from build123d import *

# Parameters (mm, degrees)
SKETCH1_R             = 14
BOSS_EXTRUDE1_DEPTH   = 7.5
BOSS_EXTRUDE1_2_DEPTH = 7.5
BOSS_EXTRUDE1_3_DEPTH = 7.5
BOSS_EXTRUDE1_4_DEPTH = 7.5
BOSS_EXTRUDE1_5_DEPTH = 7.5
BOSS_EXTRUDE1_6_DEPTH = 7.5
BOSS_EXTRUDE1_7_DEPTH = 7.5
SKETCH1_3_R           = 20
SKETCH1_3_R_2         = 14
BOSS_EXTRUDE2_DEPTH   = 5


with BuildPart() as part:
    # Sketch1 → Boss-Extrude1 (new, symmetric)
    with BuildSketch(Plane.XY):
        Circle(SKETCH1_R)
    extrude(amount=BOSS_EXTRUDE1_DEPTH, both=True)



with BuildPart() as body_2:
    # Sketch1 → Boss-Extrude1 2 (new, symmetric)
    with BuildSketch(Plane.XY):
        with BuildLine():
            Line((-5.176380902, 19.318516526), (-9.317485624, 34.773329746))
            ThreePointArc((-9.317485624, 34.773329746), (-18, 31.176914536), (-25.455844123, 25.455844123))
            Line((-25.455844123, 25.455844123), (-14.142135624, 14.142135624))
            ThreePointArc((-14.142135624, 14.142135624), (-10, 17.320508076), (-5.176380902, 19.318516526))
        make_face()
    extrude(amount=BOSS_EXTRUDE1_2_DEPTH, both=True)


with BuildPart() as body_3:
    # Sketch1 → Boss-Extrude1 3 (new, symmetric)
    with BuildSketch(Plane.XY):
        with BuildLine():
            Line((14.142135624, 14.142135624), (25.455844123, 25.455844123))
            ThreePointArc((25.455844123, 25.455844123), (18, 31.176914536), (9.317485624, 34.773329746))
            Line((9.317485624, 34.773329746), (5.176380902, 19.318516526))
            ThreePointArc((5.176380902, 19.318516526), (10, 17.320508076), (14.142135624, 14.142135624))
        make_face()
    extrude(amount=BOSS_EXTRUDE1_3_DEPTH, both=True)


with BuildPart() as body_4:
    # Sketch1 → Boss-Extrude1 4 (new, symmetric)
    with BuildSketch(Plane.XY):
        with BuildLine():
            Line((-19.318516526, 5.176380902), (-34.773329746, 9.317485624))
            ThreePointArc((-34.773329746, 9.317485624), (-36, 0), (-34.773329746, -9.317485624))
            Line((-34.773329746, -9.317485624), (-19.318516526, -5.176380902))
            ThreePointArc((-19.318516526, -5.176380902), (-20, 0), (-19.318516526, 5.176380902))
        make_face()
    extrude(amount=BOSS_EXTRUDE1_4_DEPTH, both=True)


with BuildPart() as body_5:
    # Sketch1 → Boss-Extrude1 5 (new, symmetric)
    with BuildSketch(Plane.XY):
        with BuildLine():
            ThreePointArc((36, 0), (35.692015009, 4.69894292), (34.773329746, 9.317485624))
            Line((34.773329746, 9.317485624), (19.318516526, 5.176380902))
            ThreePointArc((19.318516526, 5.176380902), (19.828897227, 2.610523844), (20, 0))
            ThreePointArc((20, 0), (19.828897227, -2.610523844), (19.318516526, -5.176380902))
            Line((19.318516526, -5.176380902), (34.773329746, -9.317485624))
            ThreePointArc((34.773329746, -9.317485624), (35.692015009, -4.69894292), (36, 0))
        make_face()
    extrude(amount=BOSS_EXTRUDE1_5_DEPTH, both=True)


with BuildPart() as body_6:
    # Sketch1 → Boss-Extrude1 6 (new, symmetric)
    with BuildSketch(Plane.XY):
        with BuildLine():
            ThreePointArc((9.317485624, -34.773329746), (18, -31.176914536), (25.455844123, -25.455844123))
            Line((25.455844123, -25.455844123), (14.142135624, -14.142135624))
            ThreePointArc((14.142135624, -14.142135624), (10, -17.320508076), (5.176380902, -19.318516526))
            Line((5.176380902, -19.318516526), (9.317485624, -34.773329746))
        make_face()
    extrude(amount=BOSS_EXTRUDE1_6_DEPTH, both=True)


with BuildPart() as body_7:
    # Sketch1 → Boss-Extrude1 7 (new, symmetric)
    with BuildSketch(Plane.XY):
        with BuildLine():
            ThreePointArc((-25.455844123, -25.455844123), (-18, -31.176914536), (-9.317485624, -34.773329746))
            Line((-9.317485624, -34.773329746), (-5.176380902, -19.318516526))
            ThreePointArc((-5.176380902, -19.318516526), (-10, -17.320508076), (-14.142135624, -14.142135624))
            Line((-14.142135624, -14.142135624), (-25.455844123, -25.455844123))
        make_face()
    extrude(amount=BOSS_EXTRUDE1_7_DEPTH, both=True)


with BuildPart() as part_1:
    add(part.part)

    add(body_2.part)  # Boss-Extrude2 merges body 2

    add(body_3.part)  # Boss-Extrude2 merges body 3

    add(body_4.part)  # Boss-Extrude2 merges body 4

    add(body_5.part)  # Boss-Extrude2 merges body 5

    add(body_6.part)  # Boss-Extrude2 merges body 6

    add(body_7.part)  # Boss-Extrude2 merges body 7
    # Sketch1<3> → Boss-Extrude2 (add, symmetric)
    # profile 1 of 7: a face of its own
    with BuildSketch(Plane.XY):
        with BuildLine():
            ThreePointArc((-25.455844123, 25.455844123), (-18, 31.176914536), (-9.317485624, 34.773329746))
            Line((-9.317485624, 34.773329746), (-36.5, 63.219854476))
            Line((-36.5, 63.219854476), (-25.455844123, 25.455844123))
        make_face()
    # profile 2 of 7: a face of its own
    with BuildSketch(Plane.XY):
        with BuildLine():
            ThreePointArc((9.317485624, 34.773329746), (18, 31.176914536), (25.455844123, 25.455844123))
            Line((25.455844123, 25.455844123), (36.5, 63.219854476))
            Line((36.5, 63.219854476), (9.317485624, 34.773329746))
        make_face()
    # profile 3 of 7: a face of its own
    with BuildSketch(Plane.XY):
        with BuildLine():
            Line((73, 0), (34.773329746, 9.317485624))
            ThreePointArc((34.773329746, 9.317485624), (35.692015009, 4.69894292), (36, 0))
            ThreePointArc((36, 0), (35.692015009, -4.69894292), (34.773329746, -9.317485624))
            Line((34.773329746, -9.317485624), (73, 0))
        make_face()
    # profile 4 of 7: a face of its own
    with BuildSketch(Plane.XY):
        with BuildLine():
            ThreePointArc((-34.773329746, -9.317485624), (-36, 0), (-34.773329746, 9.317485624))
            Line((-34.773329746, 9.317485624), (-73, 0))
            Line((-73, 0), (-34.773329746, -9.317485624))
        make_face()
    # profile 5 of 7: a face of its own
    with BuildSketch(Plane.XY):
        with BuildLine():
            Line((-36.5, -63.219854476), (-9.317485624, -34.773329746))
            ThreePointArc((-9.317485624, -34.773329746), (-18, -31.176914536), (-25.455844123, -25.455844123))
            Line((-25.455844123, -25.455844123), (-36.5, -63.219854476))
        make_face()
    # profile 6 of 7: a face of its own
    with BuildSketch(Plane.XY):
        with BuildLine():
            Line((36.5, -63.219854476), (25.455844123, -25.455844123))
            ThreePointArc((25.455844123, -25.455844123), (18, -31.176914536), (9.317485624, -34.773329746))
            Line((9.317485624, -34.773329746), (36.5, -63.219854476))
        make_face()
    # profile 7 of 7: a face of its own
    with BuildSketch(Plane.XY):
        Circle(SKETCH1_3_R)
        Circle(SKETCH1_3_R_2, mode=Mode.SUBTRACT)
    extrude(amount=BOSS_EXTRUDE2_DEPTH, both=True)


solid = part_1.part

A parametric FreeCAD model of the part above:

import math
import FreeCAD as App
import Part
import Sketcher
from FreeCAD import Vector
Q = App.Units.Quantity

doc = App.newDocument("Part")
body = doc.addObject("PartDesign::Body", "Body")

# Sketch on XY plane
sketch1 = body.newObject("Sketcher::SketchObject", "Sketch")
sketch1.AttachmentSupport = (doc.getObject("XY_Plane"), [""])
sketch1.MapMode = "FlatFace"
sketch1.addGeometry(Part.Circle(Vector(0, 0, 0), Vector(0, 0, 1), 14), False)
sketch1.addConstraint([
    Sketcher.Constraint("Coincident", 0, 3, -1, 1),
    Sketcher.Constraint("Diameter", 0, Q("28 mm")),
])
pad1 = body.newObject("PartDesign::Pad", "Pad")
pad1.Profile = sketch1
pad1.Length = 15
pad1.Midplane = True
body2 = doc.addObject("PartDesign::Body", "Body001")

# Sketch on XY plane
sketch2 = body2.newObject("Sketcher::SketchObject", "Sketch001")
sketch2.AttachmentSupport = (doc.getObject("XY_Plane001"), [""])
sketch2.MapMode = "FlatFace"
sketch2.addGeometry([
    Part.LineSegment(Vector(-5, 19, 0), Vector(-9, 35, 0)),
    Part.ArcOfCircle(Part.Circle(Vector(0, 0, 0), Vector(0, 0, 1), 36), math.radians(105), math.radians(135)),
    Part.LineSegment(Vector(-25, 25, 0), Vector(-14, 14, 0)),
    Part.ArcOfCircle(Part.Circle(Vector(0, 0, 0), Vector(0, 0, 1), 20), math.radians(105), math.radians(135)),
], False)
sketch2.addConstraint([
    Sketcher.Constraint("Coincident", 0, 2, 1, 1),
    Sketcher.Constraint("Coincident", 1, 2, 2, 1),
    Sketcher.Constraint("Coincident", 2, 2, 3, 2),
    Sketcher.Constraint("Coincident", 3, 1, 0, 1),
    Sketcher.Constraint("Coincident", 1, 3, -1, 1),
    Sketcher.Constraint("Coincident", 3, 3, -1, 1),
    Sketcher.Constraint("Radius", 1, Q("36 mm")),
    Sketcher.Constraint("Radius", 3, Q("20 mm")),
    Sketcher.Constraint("Angle", 0, Q("105 deg")),
    Sketcher.Constraint("Angle", 2, Q("-45 deg")),
    Sketcher.Constraint("DistanceY", -1, 1, 0, 2, Q("34.77333 mm")),
    Sketcher.Constraint("DistanceX", 1, 2, 0, 2, Q("16.138358 mm")),
])
pad2 = body2.newObject("PartDesign::Pad", "Pad001")
pad2.Profile = sketch2
pad2.Length = 15
pad2.Midplane = True
body3 = doc.addObject("PartDesign::Body", "Body002")

# Sketch on XY plane
sketch3 = body3.newObject("Sketcher::SketchObject", "Sketch002")
sketch3.AttachmentSupport = (doc.getObject("XY_Plane002"), [""])
sketch3.MapMode = "FlatFace"
sketch3.addGeometry([
    Part.LineSegment(Vector(14, 14, 0), Vector(25, 25, 0)),
    Part.ArcOfCircle(Part.Circle(Vector(0, 0, 0), Vector(0, 0, 1), 36), math.radians(45), math.radians(75)),
    Part.LineSegment(Vector(9, 35, 0), Vector(5, 19, 0)),
    Part.ArcOfCircle(Part.Circle(Vector(0, 0, 0), Vector(0, 0, 1), 20), math.radians(45), math.radians(75)),
], False)
sketch3.addConstraint([
    Sketcher.Constraint("Coincident", 0, 2, 1, 1),
    Sketcher.Constraint("Coincident", 1, 2, 2, 1),
    Sketcher.Constraint("Coincident", 2, 2, 3, 2),
    Sketcher.Constraint("Coincident", 3, 1, 0, 1),
    Sketcher.Constraint("Coincident", 1, 3, -1, 1),
    Sketcher.Constraint("Coincident", 3, 3, -1, 1),
    Sketcher.Constraint("Radius", 1, Q("36 mm")),
    Sketcher.Constraint("Radius", 3, Q("20 mm")),
    Sketcher.Constraint("Angle", 0, Q("45 deg")),
    Sketcher.Constraint("Angle", 2, Q("-105 deg")),
    Sketcher.Constraint("DistanceY", -1, 1, 1, 2, Q("34.77333 mm")),
    Sketcher.Constraint("DistanceX", 1, 2, 0, 2, Q("16.138358 mm")),
])
pad3 = body3.newObject("PartDesign::Pad", "Pad002")
pad3.Profile = sketch3
pad3.Length = 15
pad3.Midplane = True
body4 = doc.addObject("PartDesign::Body", "Body003")

# Sketch on XY plane
sketch4 = body4.newObject("Sketcher::SketchObject", "Sketch003")
sketch4.AttachmentSupport = (doc.getObject("XY_Plane003"), [""])
sketch4.MapMode = "FlatFace"
sketch4.addGeometry([
    Part.LineSegment(Vector(-19, 5, 0), Vector(-35, 9, 0)),
    Part.ArcOfCircle(Part.Circle(Vector(0, 0, 0), Vector(0, 0, 1), 36), math.radians(165), math.radians(195)),
    Part.LineSegment(Vector(-35, -9, 0), Vector(-19, -5, 0)),
    Part.ArcOfCircle(Part.Circle(Vector(0, 0, 0), Vector(0, 0, 1), 20), math.radians(165), math.radians(195)),
], False)
sketch4.addConstraint([
    Sketcher.Constraint("Coincident", 0, 2, 1, 1),
    Sketcher.Constraint("Coincident", 1, 2, 2, 1),
    Sketcher.Constraint("Coincident", 2, 2, 3, 2),
    Sketcher.Constraint("Coincident", 3, 1, 0, 1),
    Sketcher.Constraint("Coincident", 1, 3, -1, 1),
    Sketcher.Constraint("Coincident", 3, 3, -1, 1),
    Sketcher.Constraint("Vertical", 0, 2, 1, 2),
    Sketcher.Constraint("Vertical", 2, 2, 3, 1),
    Sketcher.Constraint("Radius", 1, Q("36 mm")),
    Sketcher.Constraint("Radius", 3, Q("20 mm")),
    Sketcher.Constraint("Angle", 0, Q("165 deg")),
    Sketcher.Constraint("DistanceX", 0, 2, -1, 1, Q("34.77333 mm")),
])
pad4 = body4.newObject("PartDesign::Pad", "Pad003")
pad4.Profile = sketch4
pad4.Length = 15
pad4.Midplane = True
body5 = doc.addObject("PartDesign::Body", "Body004")

# Sketch on XY plane
sketch5 = body5.newObject("Sketcher::SketchObject", "Sketch004")
sketch5.AttachmentSupport = (doc.getObject("XY_Plane004"), [""])
sketch5.MapMode = "FlatFace"
sketch5.addGeometry([
    Part.ArcOfCircle(Part.Circle(Vector(0, 0, 0), Vector(0, 0, 1), 36), math.radians(0), math.radians(15)),  # 0
    Part.LineSegment(Vector(35, 9, 0), Vector(19, 5, 0)),  # 1
    Part.ArcOfCircle(Part.Circle(Vector(0, 0, 0), Vector(0, 0, 1), 20), math.radians(0), math.radians(15)),  # 2
    Part.ArcOfCircle(Part.Circle(Vector(0, 0, 0), Vector(0, 0, 1), 20), math.radians(-15), math.radians(0)),  # 3
    Part.LineSegment(Vector(19, -5, 0), Vector(35, -9, 0)),  # 4
    Part.ArcOfCircle(Part.Circle(Vector(0, 0, 0), Vector(0, 0, 1), 36), math.radians(-15), math.radians(0)),  # 5
], False)
sketch5.addConstraint([
    Sketcher.Constraint("Coincident", 0, 2, 1, 1),
    Sketcher.Constraint("Coincident", 1, 2, 2, 2),
    Sketcher.Constraint("Tangent", 2, 1, 3, 2),
    Sketcher.Constraint("Coincident", 3, 1, 4, 1),
    Sketcher.Constraint("Coincident", 4, 2, 5, 1),
    Sketcher.Constraint("Tangent", 5, 2, 0, 1),
    Sketcher.Constraint("Coincident", 0, 3, -1, 1),
    Sketcher.Constraint("Coincident", 2, 3, -1, 1),
    Sketcher.Constraint("Equal", 2, 3),
    Sketcher.Constraint("Equal", 0, 5),
    Sketcher.Constraint("PointOnObject", 2, 1, -1),
    Sketcher.Constraint("PointOnObject", 5, 2, -1),
    Sketcher.Constraint("Vertical", 1, 2, 3, 1),
    Sketcher.Constraint("Vertical", 0, 2, 4, 2),
    Sketcher.Constraint("Radius", 0, Q("36 mm")),
    Sketcher.Constraint("Radius", 2, Q("20 mm")),
    Sketcher.Constraint("Angle", 1, Q("-165 deg")),
    Sketcher.Constraint("DistanceX", -1, 1, 0, 2, Q("34.77333 mm")),
])
pad5 = body5.newObject("PartDesign::Pad", "Pad004")
pad5.Profile = sketch5
pad5.Length = 15
pad5.Midplane = True
body6 = doc.addObject("PartDesign::Body", "Body005")

# Sketch on XY plane
sketch6 = body6.newObject("Sketcher::SketchObject", "Sketch005")
sketch6.AttachmentSupport = (doc.getObject("XY_Plane005"), [""])
sketch6.MapMode = "FlatFace"
sketch6.addGeometry([
    Part.ArcOfCircle(Part.Circle(Vector(0, 0, 0), Vector(0, 0, 1), 36), math.radians(-75), math.radians(-45)),
    Part.LineSegment(Vector(25, -25, 0), Vector(14, -14, 0)),
    Part.ArcOfCircle(Part.Circle(Vector(0, 0, 0), Vector(0, 0, 1), 20), math.radians(-75), math.radians(-45)),
    Part.LineSegment(Vector(5, -19, 0), Vector(9, -35, 0)),
], False)
sketch6.addConstraint([
    Sketcher.Constraint("Coincident", 0, 2, 1, 1),
    Sketcher.Constraint("Coincident", 1, 2, 2, 2),
    Sketcher.Constraint("Coincident", 2, 1, 3, 1),
    Sketcher.Constraint("Coincident", 3, 2, 0, 1),
    Sketcher.Constraint("Coincident", 0, 3, -1, 1),
    Sketcher.Constraint("Coincident", 2, 3, -1, 1),
    Sketcher.Constraint("Radius", 0, Q("36 mm")),
    Sketcher.Constraint("Radius", 2, Q("20 mm")),
    Sketcher.Constraint("Angle", 1, Q("135 deg")),
    Sketcher.Constraint("Angle", 3, Q("-75 deg")),
    Sketcher.Constraint("DistanceX", -1, 1, 2, 1, Q("5.176381 mm")),
    Sketcher.Constraint("DistanceY", 2, 1, 1, 2, Q("5.176381 mm")),
])
pad6 = body6.newObject("PartDesign::Pad", "Pad005")
pad6.Profile = sketch6
pad6.Length = 15
pad6.Midplane = True
body7 = doc.addObject("PartDesign::Body", "Body006")

# Sketch on XY plane
sketch7 = body7.newObject("Sketcher::SketchObject", "Sketch006")
sketch7.AttachmentSupport = (doc.getObject("XY_Plane006"), [""])
sketch7.MapMode = "FlatFace"
sketch7.addGeometry([
    Part.ArcOfCircle(Part.Circle(Vector(0, 0, 0), Vector(0, 0, 1), 36), math.radians(-135), math.radians(-105)),
    Part.LineSegment(Vector(-9, -35, 0), Vector(-5, -19, 0)),
    Part.ArcOfCircle(Part.Circle(Vector(0, 0, 0), Vector(0, 0, 1), 20), math.radians(-135), math.radians(-105)),
    Part.LineSegment(Vector(-14, -14, 0), Vector(-25, -25, 0)),
], False)
sketch7.addConstraint([
    Sketcher.Constraint("Coincident", 0, 2, 1, 1),
    Sketcher.Constraint("Coincident", 1, 2, 2, 2),
    Sketcher.Constraint("Coincident", 2, 1, 3, 1),
    Sketcher.Constraint("Coincident", 3, 2, 0, 1),
    Sketcher.Constraint("Coincident", 0, 3, -1, 1),
    Sketcher.Constraint("Coincident", 2, 3, -1, 1),
    Sketcher.Constraint("Radius", 0, Q("36 mm")),
    Sketcher.Constraint("Radius", 2, Q("20 mm")),
    Sketcher.Constraint("Angle", 1, Q("75 deg")),
    Sketcher.Constraint("Angle", 3, Q("-135 deg")),
    Sketcher.Constraint("DistanceY", 0, 2, -1, 1, Q("34.77333 mm")),
    Sketcher.Constraint("DistanceY", 1, 2, 2, 1, Q("5.176381 mm")),
])
pad7 = body7.newObject("PartDesign::Pad", "Pad006")
pad7.Profile = sketch7
pad7.Length = 15
pad7.Midplane = True
body.AllowCompound = True
doc.recompute()

boolean = body.newObject("PartDesign::Boolean", "Boolean")
boolean.Type = "Fuse"
boolean.addObjects([body2])
doc.recompute()

boolean2 = body.newObject("PartDesign::Boolean", "Boolean001")
boolean2.Type = "Fuse"
boolean2.addObjects([body3])
doc.recompute()

boolean3 = body.newObject("PartDesign::Boolean", "Boolean002")
boolean3.Type = "Fuse"
boolean3.addObjects([body4])
doc.recompute()

boolean4 = body.newObject("PartDesign::Boolean", "Boolean003")
boolean4.Type = "Fuse"
boolean4.addObjects([body5])
doc.recompute()

boolean5 = body.newObject("PartDesign::Boolean", "Boolean004")
boolean5.Type = "Fuse"
boolean5.addObjects([body6])
doc.recompute()

boolean6 = body.newObject("PartDesign::Boolean", "Boolean005")
boolean6.Type = "Fuse"
boolean6.addObjects([body7])

# Sketch on XY plane
sketch8 = body.newObject("Sketcher::SketchObject", "Sketch007")
sketch8.AttachmentSupport = (doc.getObject("XY_Plane"), [""])
sketch8.MapMode = "FlatFace"
sketch8.addGeometry([
    Part.ArcOfCircle(Part.Circle(Vector(0, 0, 0), Vector(0, 0, 1), 36), math.radians(105), math.radians(135)),  # 0
    Part.LineSegment(Vector(-9, 35, 0), Vector(-36, 63, 0)),  # 1
    Part.LineSegment(Vector(-36, 63, 0), Vector(-25, 25, 0)),  # 2
    Part.ArcOfCircle(Part.Circle(Vector(0, 0, 0), Vector(0, 0, 1), 36), math.radians(45), math.radians(75)),  # 3
    Part.LineSegment(Vector(25, 25, 0), Vector(36, 63, 0)),  # 4
    Part.LineSegment(Vector(36, 63, 0), Vector(9, 35, 0)),  # 5
    Part.LineSegment(Vector(73, 0, 0), Vector(35, 9, 0)),  # 6
    Part.ArcOfCircle(Part.Circle(Vector(0, 0, 0), Vector(0, 0, 1), 36), math.radians(0), math.radians(15)),  # 7
    Part.ArcOfCircle(Part.Circle(Vector(0, 0, 0), Vector(0, 0, 1), 36), math.radians(-15), math.radians(0)),  # 8
    Part.LineSegment(Vector(35, -9, 0), Vector(73, 0, 0)),  # 9
    Part.ArcOfCircle(Part.Circle(Vector(0, 0, 0), Vector(0, 0, 1), 36), math.radians(165), math.radians(195)),  # 10
    Part.LineSegment(Vector(-35, 9, 0), Vector(-73, 0, 0)),  # 11
    Part.LineSegment(Vector(-73, 0, 0), Vector(-35, -9, 0)),  # 12
    Part.LineSegment(Vector(-36, -63, 0), Vector(-9, -35, 0)),  # 13
    Part.ArcOfCircle(Part.Circle(Vector(0, 0, 0), Vector(0, 0, 1), 36), math.radians(-135), math.radians(-105)),  # 14
    Part.LineSegment(Vector(-25, -25, 0), Vector(-36, -63, 0)),  # 15
    Part.LineSegment(Vector(36, -63, 0), Vector(25, -25, 0)),  # 16
    Part.ArcOfCircle(Part.Circle(Vector(0, 0, 0), Vector(0, 0, 1), 36), math.radians(-75), math.radians(-45)),  # 17
    Part.LineSegment(Vector(9, -35, 0), Vector(36, -63, 0)),  # 18
    Part.Circle(Vector(0, 0, 0), Vector(0, 0, 1), 20),  # 19
    Part.Circle(Vector(0, 0, 0), Vector(0, 0, 1), 14),  # 20
], False)
sketch8.addConstraint([
    Sketcher.Constraint("Coincident", 0, 1, 1, 1),
    Sketcher.Constraint("Coincident", 1, 2, 2, 1),
    Sketcher.Constraint("Coincident", 2, 2, 0, 2),
    Sketcher.Constraint("Coincident", 3, 1, 4, 1),
    Sketcher.Constraint("Coincident", 4, 2, 5, 1),
    Sketcher.Constraint("Coincident", 5, 2, 3, 2),
    Sketcher.Constraint("Coincident", 6, 2, 7, 2),
    Sketcher.Constraint("Tangent", 7, 1, 8, 2),
    Sketcher.Constraint("Coincident", 8, 1, 9, 1),
    Sketcher.Constraint("Coincident", 9, 2, 6, 1),
    Sketcher.Constraint("Coincident", 10, 1, 11, 1),
    Sketcher.Constraint("Coincident", 11, 2, 12, 1),
    Sketcher.Constraint("Coincident", 12, 2, 10, 2),
    Sketcher.Constraint("Coincident", 13, 2, 14, 2),
    Sketcher.Constraint("Coincident", 14, 1, 15, 1),
    Sketcher.Constraint("Coincident", 15, 2, 13, 1),
    Sketcher.Constraint("Coincident", 16, 2, 17, 2),
    Sketcher.Constraint("Coincident", 17, 1, 18, 1),
    Sketcher.Constraint("Coincident", 18, 2, 16, 1),
    Sketcher.Constraint("Coincident", 0, 3, -1, 1),
    Sketcher.Constraint("Coincident", 3, 3, -1, 1),
    Sketcher.Constraint("Coincident", 7, 3, -1, 1),
    Sketcher.Constraint("Coincident", 10, 3, -1, 1),
    Sketcher.Constraint("Coincident", 14, 3, -1, 1),
    Sketcher.Constraint("Coincident", 17, 3, -1, 1),
    Sketcher.Constraint("Coincident", 19, 3, -1, 1),
    Sketcher.Constraint("Coincident", 20, 3, -1, 1),
    Sketcher.Constraint("Equal", 0, 3),
    Sketcher.Constraint("Equal", 3, 7),
    Sketcher.Constraint("Equal", 7, 8),
    Sketcher.Constraint("Equal", 8, 10),
    Sketcher.Constraint("Equal", 10, 14),
    Sketcher.Constraint("Equal", 14, 17),
    Sketcher.Constraint("Symmetric", 9, 2, 11, 2, -1, 1),
    Sketcher.Constraint("Symmetric", 4, 2, 15, 2, -1, 1),
    Sketcher.Constraint("Symmetric", 1, 2, 18, 2, -1, 1),
    Sketcher.Constraint("Symmetric", 1, 2, 4, 2, -2),
    Sketcher.Constraint("PointOnObject", 7, 1, -1),
    Sketcher.Constraint("PointOnObject", 9, 2, -1),
    Sketcher.Constraint("Parallel", 9, 11),
    Sketcher.Constraint("Parallel", 6, 12),
    Sketcher.Constraint("Parallel", 5, 13),
    Sketcher.Constraint("Parallel", 4, 15),
    Sketcher.Constraint("Parallel", 2, 16),
    Sketcher.Constraint("Parallel", 1, 18),
    Sketcher.Constraint("Horizontal", 2, 2, 3, 1),
    Sketcher.Constraint("Horizontal", 0, 1, 5, 2),
    Sketcher.Constraint("Horizontal", 6, 2, 10, 1),
    Sketcher.Constraint("Equal", 1, 2),
    Sketcher.Constraint("Equal", 5, 6),
    Sketcher.Constraint("Diameter", 19, Q("40 mm")),
    Sketcher.Constraint("Diameter", 20, Q("28 mm")),
    Sketcher.Constraint("Radius", 0, Q("36 mm")),
    Sketcher.Constraint("DistanceX", -1, 1, 9, 2, Q("73 mm")),
    Sketcher.Constraint("DistanceX", 1, 2, -1, 1, Q("36.5 mm")),
    Sketcher.Constraint("DistanceY", -1, 1, 0, 1, Q("34.77333 mm")),
    Sketcher.Constraint("DistanceX", -1, 1, 6, 2, Q("34.77333 mm")),
])
pad8 = body.newObject("PartDesign::Pad", "Pad007")
pad8.Profile = sketch8
pad8.Length = 10
pad8.Midplane = True

doc.recompute()
